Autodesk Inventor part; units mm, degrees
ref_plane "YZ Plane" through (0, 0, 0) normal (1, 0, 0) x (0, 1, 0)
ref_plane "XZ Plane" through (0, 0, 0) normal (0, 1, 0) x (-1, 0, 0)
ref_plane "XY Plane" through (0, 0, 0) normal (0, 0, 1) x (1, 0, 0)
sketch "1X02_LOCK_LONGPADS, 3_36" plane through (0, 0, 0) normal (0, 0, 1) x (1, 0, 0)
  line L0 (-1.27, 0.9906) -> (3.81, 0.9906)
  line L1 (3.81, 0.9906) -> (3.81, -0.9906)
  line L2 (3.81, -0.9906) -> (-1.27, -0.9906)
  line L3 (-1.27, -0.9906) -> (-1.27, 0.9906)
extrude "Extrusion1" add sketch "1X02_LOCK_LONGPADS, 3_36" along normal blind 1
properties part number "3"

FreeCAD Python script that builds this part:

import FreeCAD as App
import Part
import Sketcher

V = App.Vector
Q = App.Units.Quantity

doc = App.newDocument("Part")
params = doc.addObject("Spreadsheet::Sheet", "Params")
for row, (alias, value) in enumerate([
    ("sketch1_width", "0.2 in"),
    ("sketch1_height", "0.078 in"),
    ("pad1_length", "1 mm"),
], start=1):
    params.set(f"A{row}", alias)
    params.set(f"B{row}", "=" + value)
    params.setAlias(f"B{row}", alias)

body = doc.addObject("PartDesign::Body", "Body")

sketch1 = body.newObject("Sketcher::SketchObject", "Sketch")
sketch1.AttachmentSupport = (doc.getObject("XY_Plane"), [""])
sketch1.MapMode = "FlatFace"
sketch1.addGeometry([
    Part.LineSegment(V(3.8, 1, 0), V(-1.3, 1, 0)),
    Part.LineSegment(V(-1.3, 1, 0), V(-1.3, -1, 0)),
    Part.LineSegment(V(-1.3, -1, 0), V(3.8, -1, 0)),
    Part.LineSegment(V(3.8, -1, 0), V(3.8, 1, 0)),
], False)
sketch1.addConstraint([
    Sketcher.Constraint("Coincident", 0, 2, 1, 1),
    Sketcher.Constraint("Coincident", 1, 2, 2, 1),
    Sketcher.Constraint("Coincident", 2, 2, 3, 1),
    Sketcher.Constraint("Coincident", 3, 2, 0, 1),
    Sketcher.Constraint("Horizontal", 0),
    Sketcher.Constraint("Vertical", 1),
    Sketcher.Constraint("Horizontal", 2),
    Sketcher.Constraint("Vertical", 3),
    Sketcher.Constraint("DistanceX", 0, 2, 0, 1, Q("0.2 in")),
    Sketcher.Constraint("DistanceY", 1, 2, 1, 1, Q("0.078 in")),
    Sketcher.Constraint("DistanceX", 0, 2, -1, 1, Q("0.05 in")),
    Sketcher.Constraint("DistanceY", -1, 1, 0, 2, Q("0.039 in")),
])
sketch1.setExpression("Constraints[8]", "Params.sketch1_width")
sketch1.setExpression("Constraints[9]", "Params.sketch1_height")
pad1 = body.newObject("PartDesign::Pad", "Pad")
pad1.Profile = sketch1
pad1.setExpression("Length", "Params.pad1_length")

doc.recompute()
